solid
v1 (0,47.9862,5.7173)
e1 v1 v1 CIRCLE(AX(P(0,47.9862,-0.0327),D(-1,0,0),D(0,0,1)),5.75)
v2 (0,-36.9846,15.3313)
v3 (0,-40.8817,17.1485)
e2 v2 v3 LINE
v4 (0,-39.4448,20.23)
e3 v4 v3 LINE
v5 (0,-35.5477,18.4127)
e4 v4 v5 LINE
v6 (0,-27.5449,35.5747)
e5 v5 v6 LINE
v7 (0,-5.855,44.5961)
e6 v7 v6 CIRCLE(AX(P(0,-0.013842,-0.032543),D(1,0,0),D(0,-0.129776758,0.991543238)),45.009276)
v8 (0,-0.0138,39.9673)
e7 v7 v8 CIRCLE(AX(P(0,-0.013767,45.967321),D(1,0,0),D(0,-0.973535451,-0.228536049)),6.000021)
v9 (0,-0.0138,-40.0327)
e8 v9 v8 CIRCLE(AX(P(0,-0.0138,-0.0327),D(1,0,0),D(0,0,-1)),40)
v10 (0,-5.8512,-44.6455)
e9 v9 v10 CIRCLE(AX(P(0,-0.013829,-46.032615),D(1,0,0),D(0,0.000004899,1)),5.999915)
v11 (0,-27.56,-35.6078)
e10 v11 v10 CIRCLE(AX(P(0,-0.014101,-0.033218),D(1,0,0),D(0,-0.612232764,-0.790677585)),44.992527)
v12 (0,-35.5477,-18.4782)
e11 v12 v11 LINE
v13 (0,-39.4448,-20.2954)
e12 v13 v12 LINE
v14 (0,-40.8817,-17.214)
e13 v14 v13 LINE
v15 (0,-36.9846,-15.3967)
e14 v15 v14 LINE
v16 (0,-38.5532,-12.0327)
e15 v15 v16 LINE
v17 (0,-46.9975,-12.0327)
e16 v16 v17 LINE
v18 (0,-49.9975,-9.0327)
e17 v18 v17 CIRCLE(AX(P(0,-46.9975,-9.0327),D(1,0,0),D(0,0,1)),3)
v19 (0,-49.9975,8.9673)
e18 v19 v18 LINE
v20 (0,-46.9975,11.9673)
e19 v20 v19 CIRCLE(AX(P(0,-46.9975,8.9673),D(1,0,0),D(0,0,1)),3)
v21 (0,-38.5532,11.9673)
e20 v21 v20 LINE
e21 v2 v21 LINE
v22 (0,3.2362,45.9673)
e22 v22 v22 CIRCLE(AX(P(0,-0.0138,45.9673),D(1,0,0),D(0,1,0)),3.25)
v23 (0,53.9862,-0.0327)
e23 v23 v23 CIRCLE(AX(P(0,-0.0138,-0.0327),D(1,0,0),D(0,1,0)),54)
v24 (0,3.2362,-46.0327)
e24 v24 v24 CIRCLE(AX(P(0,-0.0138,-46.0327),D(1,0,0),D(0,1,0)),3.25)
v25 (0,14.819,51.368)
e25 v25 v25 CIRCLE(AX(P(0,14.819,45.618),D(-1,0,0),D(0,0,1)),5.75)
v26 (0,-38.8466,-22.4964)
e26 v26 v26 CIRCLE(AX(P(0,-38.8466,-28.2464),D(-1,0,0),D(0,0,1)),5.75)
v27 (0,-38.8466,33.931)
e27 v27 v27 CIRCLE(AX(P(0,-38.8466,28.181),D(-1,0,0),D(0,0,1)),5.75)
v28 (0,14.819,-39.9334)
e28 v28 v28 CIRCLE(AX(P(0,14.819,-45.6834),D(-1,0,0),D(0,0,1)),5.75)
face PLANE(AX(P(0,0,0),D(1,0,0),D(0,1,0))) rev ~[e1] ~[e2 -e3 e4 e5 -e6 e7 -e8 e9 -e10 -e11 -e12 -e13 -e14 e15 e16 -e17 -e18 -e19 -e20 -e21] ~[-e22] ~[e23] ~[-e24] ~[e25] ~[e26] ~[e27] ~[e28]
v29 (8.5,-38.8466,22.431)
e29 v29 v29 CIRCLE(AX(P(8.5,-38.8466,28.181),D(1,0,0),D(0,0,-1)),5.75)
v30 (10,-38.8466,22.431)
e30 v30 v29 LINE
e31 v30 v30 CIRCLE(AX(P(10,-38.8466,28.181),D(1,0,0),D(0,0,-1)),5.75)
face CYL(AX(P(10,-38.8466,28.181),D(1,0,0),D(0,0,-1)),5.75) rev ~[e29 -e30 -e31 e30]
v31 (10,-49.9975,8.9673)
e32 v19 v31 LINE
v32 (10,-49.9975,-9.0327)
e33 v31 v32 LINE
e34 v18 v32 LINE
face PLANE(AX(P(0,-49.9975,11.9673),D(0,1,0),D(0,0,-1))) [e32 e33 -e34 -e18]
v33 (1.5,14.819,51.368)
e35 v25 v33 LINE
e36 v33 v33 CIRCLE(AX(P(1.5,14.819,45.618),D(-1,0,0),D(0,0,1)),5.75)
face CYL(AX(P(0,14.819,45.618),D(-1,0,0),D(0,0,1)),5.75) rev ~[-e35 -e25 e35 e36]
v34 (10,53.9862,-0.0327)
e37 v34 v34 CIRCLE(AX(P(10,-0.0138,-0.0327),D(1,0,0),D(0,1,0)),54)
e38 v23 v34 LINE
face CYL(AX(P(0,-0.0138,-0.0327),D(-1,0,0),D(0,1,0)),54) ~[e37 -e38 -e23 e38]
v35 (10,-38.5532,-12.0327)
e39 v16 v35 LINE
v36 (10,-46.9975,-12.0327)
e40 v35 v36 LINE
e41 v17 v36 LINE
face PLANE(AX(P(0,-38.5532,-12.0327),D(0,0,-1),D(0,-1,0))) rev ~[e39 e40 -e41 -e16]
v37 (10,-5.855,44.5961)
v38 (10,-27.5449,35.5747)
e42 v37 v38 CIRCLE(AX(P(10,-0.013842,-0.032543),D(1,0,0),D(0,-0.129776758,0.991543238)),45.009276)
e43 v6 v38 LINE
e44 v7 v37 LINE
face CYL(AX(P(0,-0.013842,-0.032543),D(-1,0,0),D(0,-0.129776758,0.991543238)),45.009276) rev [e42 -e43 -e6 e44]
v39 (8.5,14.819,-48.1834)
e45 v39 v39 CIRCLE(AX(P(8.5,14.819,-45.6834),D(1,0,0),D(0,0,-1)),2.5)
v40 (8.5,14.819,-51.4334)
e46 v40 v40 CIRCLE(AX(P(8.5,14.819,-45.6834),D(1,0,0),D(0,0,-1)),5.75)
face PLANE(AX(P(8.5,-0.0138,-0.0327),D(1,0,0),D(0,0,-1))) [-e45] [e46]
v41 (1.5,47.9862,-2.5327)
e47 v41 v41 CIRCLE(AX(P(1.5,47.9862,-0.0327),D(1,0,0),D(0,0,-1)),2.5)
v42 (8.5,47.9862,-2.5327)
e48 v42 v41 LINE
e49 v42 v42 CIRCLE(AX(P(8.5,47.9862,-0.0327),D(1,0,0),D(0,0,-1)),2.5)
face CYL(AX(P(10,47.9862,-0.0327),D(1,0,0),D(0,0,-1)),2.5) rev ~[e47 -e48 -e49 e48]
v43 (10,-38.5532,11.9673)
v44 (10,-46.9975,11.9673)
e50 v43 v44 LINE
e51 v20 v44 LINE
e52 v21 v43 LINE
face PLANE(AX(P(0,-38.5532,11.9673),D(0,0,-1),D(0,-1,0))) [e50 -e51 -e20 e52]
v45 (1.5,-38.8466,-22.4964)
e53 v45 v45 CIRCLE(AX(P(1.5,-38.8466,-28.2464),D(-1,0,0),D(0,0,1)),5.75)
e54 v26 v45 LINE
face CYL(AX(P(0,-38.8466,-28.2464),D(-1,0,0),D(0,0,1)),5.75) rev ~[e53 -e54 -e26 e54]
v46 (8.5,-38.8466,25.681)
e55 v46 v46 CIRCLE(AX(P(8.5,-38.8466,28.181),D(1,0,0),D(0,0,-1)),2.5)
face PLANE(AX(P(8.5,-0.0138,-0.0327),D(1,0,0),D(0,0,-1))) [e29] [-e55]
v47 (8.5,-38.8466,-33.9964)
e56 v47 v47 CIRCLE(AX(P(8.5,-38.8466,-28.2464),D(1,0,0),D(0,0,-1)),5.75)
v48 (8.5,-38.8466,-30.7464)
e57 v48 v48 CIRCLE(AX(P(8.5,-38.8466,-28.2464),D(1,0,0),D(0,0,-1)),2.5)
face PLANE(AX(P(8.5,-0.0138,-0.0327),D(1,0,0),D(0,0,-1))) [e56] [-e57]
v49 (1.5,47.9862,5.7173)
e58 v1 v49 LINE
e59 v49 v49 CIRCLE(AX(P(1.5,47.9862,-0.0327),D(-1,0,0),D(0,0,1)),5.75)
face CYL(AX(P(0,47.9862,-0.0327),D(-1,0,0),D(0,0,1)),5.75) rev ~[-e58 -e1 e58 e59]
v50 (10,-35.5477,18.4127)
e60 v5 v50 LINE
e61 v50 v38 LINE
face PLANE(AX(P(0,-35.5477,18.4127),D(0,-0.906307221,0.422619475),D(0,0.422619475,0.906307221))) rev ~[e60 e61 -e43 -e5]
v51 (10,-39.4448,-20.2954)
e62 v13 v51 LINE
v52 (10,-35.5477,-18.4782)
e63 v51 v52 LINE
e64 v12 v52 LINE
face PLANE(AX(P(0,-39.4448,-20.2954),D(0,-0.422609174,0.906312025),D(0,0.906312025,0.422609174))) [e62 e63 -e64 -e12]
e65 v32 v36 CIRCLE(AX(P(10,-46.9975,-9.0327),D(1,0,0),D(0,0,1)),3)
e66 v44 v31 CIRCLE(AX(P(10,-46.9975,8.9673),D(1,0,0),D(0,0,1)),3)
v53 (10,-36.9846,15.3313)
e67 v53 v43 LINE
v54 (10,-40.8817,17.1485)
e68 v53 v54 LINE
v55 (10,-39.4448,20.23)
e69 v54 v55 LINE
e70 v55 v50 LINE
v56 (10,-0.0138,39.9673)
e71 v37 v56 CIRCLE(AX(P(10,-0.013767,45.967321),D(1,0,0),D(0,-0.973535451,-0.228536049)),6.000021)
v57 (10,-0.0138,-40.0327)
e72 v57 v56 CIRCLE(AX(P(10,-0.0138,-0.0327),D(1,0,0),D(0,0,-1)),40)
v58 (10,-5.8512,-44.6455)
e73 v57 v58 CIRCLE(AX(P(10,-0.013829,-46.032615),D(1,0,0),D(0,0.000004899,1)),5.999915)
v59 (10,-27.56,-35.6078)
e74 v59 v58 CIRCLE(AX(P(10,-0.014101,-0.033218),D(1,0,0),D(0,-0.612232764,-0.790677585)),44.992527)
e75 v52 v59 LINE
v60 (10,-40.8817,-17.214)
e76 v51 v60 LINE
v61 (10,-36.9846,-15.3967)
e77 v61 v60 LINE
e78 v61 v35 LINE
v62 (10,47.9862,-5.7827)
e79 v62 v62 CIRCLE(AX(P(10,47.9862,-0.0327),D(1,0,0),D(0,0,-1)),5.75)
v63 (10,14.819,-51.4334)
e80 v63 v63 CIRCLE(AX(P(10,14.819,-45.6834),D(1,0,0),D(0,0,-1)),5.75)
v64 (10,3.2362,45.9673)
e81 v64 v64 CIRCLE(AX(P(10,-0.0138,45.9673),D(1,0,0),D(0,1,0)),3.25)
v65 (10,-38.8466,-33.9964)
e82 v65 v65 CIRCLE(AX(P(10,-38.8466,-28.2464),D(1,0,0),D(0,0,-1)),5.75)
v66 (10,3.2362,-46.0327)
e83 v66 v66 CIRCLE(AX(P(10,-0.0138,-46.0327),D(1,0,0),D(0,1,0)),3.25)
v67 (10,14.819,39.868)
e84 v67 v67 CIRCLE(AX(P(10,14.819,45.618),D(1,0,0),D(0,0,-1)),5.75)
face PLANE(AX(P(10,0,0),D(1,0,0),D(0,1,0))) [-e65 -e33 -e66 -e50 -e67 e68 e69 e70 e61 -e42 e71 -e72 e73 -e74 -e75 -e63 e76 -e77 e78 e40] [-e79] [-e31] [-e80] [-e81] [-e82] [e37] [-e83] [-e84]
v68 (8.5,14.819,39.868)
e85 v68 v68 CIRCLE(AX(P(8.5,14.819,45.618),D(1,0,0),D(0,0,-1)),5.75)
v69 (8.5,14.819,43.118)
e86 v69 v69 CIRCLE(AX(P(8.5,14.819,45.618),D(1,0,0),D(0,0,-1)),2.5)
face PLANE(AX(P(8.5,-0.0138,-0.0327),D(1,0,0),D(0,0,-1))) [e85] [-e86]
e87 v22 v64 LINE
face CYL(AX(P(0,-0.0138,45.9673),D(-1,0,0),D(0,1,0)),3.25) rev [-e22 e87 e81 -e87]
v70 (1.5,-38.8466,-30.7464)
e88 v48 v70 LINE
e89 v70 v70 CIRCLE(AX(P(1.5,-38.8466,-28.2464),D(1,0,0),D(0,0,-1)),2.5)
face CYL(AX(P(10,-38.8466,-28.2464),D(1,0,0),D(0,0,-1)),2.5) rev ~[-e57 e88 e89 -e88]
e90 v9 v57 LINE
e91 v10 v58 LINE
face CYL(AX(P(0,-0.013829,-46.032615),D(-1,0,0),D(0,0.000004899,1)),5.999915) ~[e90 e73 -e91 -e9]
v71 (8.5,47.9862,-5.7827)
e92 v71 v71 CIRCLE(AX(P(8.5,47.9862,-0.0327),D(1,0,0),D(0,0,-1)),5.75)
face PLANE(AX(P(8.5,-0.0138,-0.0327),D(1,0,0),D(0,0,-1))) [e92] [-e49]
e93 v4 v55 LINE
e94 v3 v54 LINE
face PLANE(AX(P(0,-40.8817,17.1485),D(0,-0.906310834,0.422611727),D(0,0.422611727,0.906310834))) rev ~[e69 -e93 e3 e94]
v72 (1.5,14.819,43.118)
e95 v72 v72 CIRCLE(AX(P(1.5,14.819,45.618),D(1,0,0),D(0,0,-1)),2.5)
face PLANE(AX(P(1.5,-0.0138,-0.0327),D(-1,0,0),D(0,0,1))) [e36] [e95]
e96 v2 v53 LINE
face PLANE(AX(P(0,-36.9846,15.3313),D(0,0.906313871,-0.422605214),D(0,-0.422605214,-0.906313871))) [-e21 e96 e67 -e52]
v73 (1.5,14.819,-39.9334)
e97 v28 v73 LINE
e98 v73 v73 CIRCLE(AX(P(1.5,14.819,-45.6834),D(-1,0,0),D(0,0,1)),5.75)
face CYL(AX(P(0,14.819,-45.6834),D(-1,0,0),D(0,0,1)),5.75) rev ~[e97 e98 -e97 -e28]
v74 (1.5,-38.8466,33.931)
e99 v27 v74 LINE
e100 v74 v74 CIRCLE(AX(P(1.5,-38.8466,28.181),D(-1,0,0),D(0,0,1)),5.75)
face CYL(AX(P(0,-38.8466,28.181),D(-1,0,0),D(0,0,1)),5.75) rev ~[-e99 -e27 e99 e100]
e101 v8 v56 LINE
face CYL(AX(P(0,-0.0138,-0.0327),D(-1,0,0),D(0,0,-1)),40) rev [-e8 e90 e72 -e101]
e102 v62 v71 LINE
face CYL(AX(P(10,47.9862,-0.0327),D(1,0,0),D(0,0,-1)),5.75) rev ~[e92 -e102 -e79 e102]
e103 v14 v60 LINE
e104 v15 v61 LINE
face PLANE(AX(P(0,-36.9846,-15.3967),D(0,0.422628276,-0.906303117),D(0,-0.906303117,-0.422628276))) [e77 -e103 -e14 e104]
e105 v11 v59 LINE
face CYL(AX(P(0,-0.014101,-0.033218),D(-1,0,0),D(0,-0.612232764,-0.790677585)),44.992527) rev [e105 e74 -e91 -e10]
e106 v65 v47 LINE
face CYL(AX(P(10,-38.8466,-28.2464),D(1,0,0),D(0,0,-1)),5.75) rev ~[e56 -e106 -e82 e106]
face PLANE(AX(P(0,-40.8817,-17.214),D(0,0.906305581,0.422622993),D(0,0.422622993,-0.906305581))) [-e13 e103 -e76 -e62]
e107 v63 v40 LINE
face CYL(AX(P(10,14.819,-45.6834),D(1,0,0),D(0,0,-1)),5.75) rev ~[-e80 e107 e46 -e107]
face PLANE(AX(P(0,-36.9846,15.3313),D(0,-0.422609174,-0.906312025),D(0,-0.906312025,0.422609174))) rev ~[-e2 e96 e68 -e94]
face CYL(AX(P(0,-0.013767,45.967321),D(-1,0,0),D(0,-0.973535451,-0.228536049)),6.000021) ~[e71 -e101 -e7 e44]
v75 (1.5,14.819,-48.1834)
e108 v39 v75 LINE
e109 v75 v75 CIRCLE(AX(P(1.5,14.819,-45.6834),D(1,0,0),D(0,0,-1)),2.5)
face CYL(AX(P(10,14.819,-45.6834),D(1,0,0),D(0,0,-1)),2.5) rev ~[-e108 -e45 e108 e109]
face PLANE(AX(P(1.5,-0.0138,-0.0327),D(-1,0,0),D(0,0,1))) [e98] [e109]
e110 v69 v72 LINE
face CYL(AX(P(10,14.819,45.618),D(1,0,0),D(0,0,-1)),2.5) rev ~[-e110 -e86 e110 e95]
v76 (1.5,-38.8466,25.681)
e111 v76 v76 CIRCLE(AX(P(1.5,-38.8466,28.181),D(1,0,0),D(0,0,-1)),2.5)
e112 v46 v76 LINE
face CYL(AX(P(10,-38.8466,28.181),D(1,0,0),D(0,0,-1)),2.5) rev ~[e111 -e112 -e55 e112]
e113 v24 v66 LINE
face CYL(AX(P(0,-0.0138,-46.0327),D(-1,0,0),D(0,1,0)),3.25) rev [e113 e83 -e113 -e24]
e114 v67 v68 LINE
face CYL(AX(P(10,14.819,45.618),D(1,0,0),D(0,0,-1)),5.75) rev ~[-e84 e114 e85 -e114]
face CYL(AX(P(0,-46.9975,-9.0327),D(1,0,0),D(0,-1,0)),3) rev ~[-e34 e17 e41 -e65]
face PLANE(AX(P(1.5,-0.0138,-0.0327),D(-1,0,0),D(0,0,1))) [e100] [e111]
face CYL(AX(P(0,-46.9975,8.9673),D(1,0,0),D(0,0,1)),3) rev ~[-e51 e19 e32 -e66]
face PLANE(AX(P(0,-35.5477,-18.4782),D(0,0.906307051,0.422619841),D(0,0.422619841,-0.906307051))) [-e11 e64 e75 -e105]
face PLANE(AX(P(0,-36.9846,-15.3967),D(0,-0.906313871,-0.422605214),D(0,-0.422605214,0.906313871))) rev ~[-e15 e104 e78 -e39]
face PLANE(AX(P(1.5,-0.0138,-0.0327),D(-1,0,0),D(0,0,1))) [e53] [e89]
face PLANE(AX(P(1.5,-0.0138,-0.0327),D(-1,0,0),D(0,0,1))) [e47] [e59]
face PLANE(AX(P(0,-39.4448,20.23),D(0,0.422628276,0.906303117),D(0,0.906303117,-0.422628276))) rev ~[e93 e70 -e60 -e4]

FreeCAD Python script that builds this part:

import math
import FreeCAD as App
import Part
import Sketcher
Q = App.Units.Quantity


def edges_at(feature, points):
    """Names of the edges that pass closest to the given points."""
    edges = feature.Shape.Edges
    near = lambda p: min(range(len(edges)), key=lambda i: edges[i].distToShape(Part.Vertex(*p))[0])
    return sorted({f"Edge{near(p) + 1}" for p in points})

doc = App.newDocument("Part")
body = doc.addObject("PartDesign::Body", "Body")

sketch1 = body.newObject("Sketcher::SketchObject", "Sketch")
sketch1.AttachmentSupport = (doc.getObject("YZ_Plane"), [""])
sketch1.MapMode = "FlatFace"
sketch1.addGeometry([
    Part.Circle(App.Vector(0, 0, 0), App.Vector(0, 0, 1), 54),
    Part.Circle(App.Vector(0, -46, 0), App.Vector(0, 0, 1), 3.2),
    Part.ArcOfCircle(Part.Circle(App.Vector(0, 0, 0), App.Vector(0, 0, 1), 45), math.radians(97), math.radians(128)),
    Part.ArcOfCircle(Part.Circle(App.Vector(0, 46, 0), App.Vector(0, 0, 1), 6), math.radians(-167), math.radians(-90)),
    Part.ArcOfCircle(Part.Circle(App.Vector(0, 0, 0), App.Vector(0, 0, 1), 40), math.radians(-90), math.radians(90)),
    Part.ArcOfCircle(Part.Circle(App.Vector(0, -46, 0), App.Vector(0, 0, 1), 6), math.radians(90), math.radians(167)),
    Part.ArcOfCircle(Part.Circle(App.Vector(0, 0, 0), App.Vector(0, 0, 1), 45), math.radians(-128), math.radians(-97)),
    Part.LineSegment(App.Vector(-27.6, -35.6, 0), App.Vector(-35.5, -18.5, 0)),
    Part.LineSegment(App.Vector(-35.5, -18.5, 0), App.Vector(-39.4, -20.3, 0)),
    Part.LineSegment(App.Vector(-39.4, -20.3, 0), App.Vector(-40.9, -17.2, 0)),
    Part.LineSegment(App.Vector(-40.9, -17.2, 0), App.Vector(-37, -15.4, 0)),
    Part.LineSegment(App.Vector(-37, -15.4, 0), App.Vector(-38.6, -12, 0)),
    Part.LineSegment(App.Vector(-38.6, -12, 0), App.Vector(-50, -12, 0)),
    Part.LineSegment(App.Vector(-50, -12, 0), App.Vector(-50, 12, 0)),
    Part.LineSegment(App.Vector(-50, 12, 0), App.Vector(-38.6, 12, 0)),
    Part.LineSegment(App.Vector(-38.6, 12, 0), App.Vector(-37, 15.3, 0)),
    Part.LineSegment(App.Vector(-37, 15.3, 0), App.Vector(-40.9, 17.1, 0)),
    Part.LineSegment(App.Vector(-40.9, 17.1, 0), App.Vector(-39.4, 20.2, 0)),
    Part.LineSegment(App.Vector(-39.4, 20.2, 0), App.Vector(-35.5, 18.4, 0)),
    Part.LineSegment(App.Vector(-35.5, 18.4, 0), App.Vector(-27.5, 35.6, 0)),
    Part.Circle(App.Vector(0, 46, 0), App.Vector(0, 0, 1), 3.2),
], False)
sketch1.addConstraint([
    Sketcher.Constraint("Coincident", 2, 1, 3, 1),
    Sketcher.Constraint("Tangent", 3, 2, 4, 2),
    Sketcher.Constraint("Tangent", 4, 1, 5, 1),
    Sketcher.Constraint("Coincident", 5, 2, 6, 2),
    Sketcher.Constraint("Coincident", 6, 1, 7, 1),
    Sketcher.Constraint("Coincident", 7, 2, 8, 1),
    Sketcher.Constraint("Coincident", 8, 2, 9, 1),
    Sketcher.Constraint("Coincident", 9, 2, 10, 1),
    Sketcher.Constraint("Coincident", 10, 2, 11, 1),
    Sketcher.Constraint("Coincident", 11, 2, 12, 1),
    Sketcher.Constraint("Coincident", 12, 2, 13, 1),
    Sketcher.Constraint("Coincident", 13, 2, 14, 1),
    Sketcher.Constraint("Coincident", 14, 2, 15, 1),
    Sketcher.Constraint("Coincident", 15, 2, 16, 1),
    Sketcher.Constraint("Coincident", 16, 2, 17, 1),
    Sketcher.Constraint("Coincident", 17, 2, 18, 1),
    Sketcher.Constraint("Coincident", 18, 2, 19, 1),
    Sketcher.Constraint("Coincident", 19, 2, 2, 2),
    Sketcher.Constraint("Horizontal", 12),
    Sketcher.Constraint("Vertical", 13),
    Sketcher.Constraint("Horizontal", 14),
    Sketcher.Constraint("Coincident", 2, 3, 0, 3),
    Sketcher.Constraint("Coincident", 4, 3, 0, 3),
    Sketcher.Constraint("Coincident", 5, 3, 1, 3),
    Sketcher.Constraint("Coincident", 6, 3, 0, 3),
    Sketcher.Constraint("Coincident", 20, 3, 3, 3),
    Sketcher.Constraint("Equal", 3, 5),
    Sketcher.Constraint("Equal", 1, 20),
    Sketcher.Constraint("Perpendicular", 7, 8),
    Sketcher.Constraint("Perpendicular", 8, 9),
    Sketcher.Constraint("Perpendicular", 9, 10),
    Sketcher.Constraint("Perpendicular", 10, 11),
    Sketcher.Constraint("Perpendicular", 15, 16),
    Sketcher.Constraint("Perpendicular", 16, 17),
    Sketcher.Constraint("Perpendicular", 17, 18),
    Sketcher.Constraint("Perpendicular", 18, 19),
    Sketcher.Constraint("Vertical", 0, 3, 1, 3),
    Sketcher.Constraint("Vertical", 2, 3, 3, 3),
    Sketcher.Constraint("Vertical", 11, 2, 14, 2),
    Sketcher.Constraint("Vertical", 10, 2, 15, 2),
    Sketcher.Constraint("Vertical", 9, 2, 16, 2),
    Sketcher.Constraint("Vertical", 8, 2, 17, 2),
    Sketcher.Constraint("Vertical", 7, 2, 18, 2),
    Sketcher.Constraint("Equal", 8, 10),
    Sketcher.Constraint("Equal", 11, 15),
    Sketcher.Constraint("Diameter", 0, 108.0),
    Sketcher.Constraint("Radius", 3, 6.0),
    Sketcher.Constraint("Radius", 4, 40.0),
    Sketcher.Constraint("Diameter", 1, 6.5),
    Sketcher.Constraint("DistanceY", 13, 1, 13, 2, 24.0),
    Sketcher.Constraint("Distance", 8, 4.3),
    Sketcher.Constraint("Distance", 9, 3.4),
    Sketcher.Constraint("Angle", 7, Q("115 deg")),
    Sketcher.Constraint("Radius", 2, 45.0094),
    Sketcher.Constraint("Radius", 6, 44.9931),
    Sketcher.Constraint("DistanceX", 17, 2, 19, 2, 11.9),
    Sketcher.Constraint("DistanceX", 6, 1, -1, 1, 27.56),
    Sketcher.Constraint("DistanceY", -1, 1, 17, 2, 20.23),
    Sketcher.Constraint("DistanceY", 5, 2, 8, 2, 24.35),
    Sketcher.Constraint("DistanceX", 19, 2, 2, 1, 21.69),
    Sketcher.Constraint("DistanceX", 12, 2, 12, 1, 11.4443),
])
pad1 = body.newObject("PartDesign::Pad", "Pad")
pad1.Profile = sketch1
pad1.Length = 10
doc.recompute()

fillet = body.newObject("PartDesign::Fillet", "Fillet")
fillet.Base = (pad1, edges_at(pad1, [(5, -49.998, 11.967), (5, -49.998, -12.033)]))
fillet.Radius = 3

sketch2 = body.newObject("Sketcher::SketchObject", "Sketch001")
sketch2.AttachmentSupport = (doc.getObject("YZ_Plane"), [""])
sketch2.MapMode = "FlatFace"
sketch2.AttachmentOffset = App.Placement(App.Vector(0, 0, 10), App.Rotation())
sketch2.addGeometry([
    Part.Circle(App.Vector(14.8, -45.7, 0), App.Vector(0, 0, 1), 2.5),
    Part.Circle(App.Vector(-38.8, -28.2, 0), App.Vector(0, 0, 1), 2.5),
    Part.Circle(App.Vector(48, 0, 0), App.Vector(0, 0, 1), 2.5),
    Part.Circle(App.Vector(14.8, 45.6, 0), App.Vector(0, 0, 1), 2.5),
    Part.Circle(App.Vector(-38.8, 28.2, 0), App.Vector(0, 0, 1), 2.5),
], False)
sketch2.addConstraint([
    Sketcher.Constraint("Equal", 0, 1),
    Sketcher.Constraint("Equal", 1, 2),
    Sketcher.Constraint("Equal", 2, 3),
    Sketcher.Constraint("Equal", 3, 4),
    Sketcher.Constraint("Vertical", 0, 3, 3, 3),
    Sketcher.Constraint("Vertical", 1, 3, 4, 3),
    Sketcher.Constraint("Diameter", 0, 5.0),
    Sketcher.Constraint("DistanceX", -1, 1, 0, 3, 14.819),
    Sketcher.Constraint("DistanceY", -1, 1, 3, 3, 45.618),
    Sketcher.Constraint("DistanceY", -1, 1, 4, 3, 28.181),
    Sketcher.Constraint("DistanceY", 0, 3, 1, 3, 17.437),
    Sketcher.Constraint("DistanceY", 0, 3, -1, 1, 45.6834),
    Sketcher.Constraint("DistanceX", 1, 3, -1, 1, 38.8466),
    Sketcher.Constraint("DistanceX", -1, 1, 2, 3, 47.9862),
    Sketcher.Constraint("DistanceY", 2, 3, -1, 1, 0.0327),
])
pocket1 = body.newObject("PartDesign::Pocket", "Pocket")
pocket1.Profile = sketch2
pocket1.Length = 10

sketch3 = body.newObject("Sketcher::SketchObject", "Sketch002")
sketch3.AttachmentSupport = (doc.getObject("YZ_Plane"), [""])
sketch3.MapMode = "FlatFace"
sketch3.AttachmentOffset = App.Placement(App.Vector(0, 0, 10), App.Rotation())
sketch3.addGeometry([
    Part.Circle(App.Vector(48, 0, 0), App.Vector(0, 0, 1), 5.8),
    Part.Circle(App.Vector(48, 0, 0), App.Vector(0, 0, 1), 2.5),
    Part.Circle(App.Vector(14.8, 45.6, 0), App.Vector(0, 0, 1), 5.8),
    Part.Circle(App.Vector(-38.8, 28.2, 0), App.Vector(0, 0, 1), 5.8),
    Part.Circle(App.Vector(-38.8, -28.2, 0), App.Vector(0, 0, 1), 5.8),
    Part.Circle(App.Vector(14.8, -45.7, 0), App.Vector(0, 0, 1), 5.8),
], False)
sketch3.addConstraint([
    Sketcher.Constraint("Coincident", 1, 3, 0, 3),
    Sketcher.Constraint("Equal", 0, 2),
    Sketcher.Constraint("Equal", 2, 3),
    Sketcher.Constraint("Equal", 3, 4),
    Sketcher.Constraint("Equal", 4, 5),
    Sketcher.Constraint("Vertical", 3, 3, 4, 3),
    Sketcher.Constraint("Vertical", 2, 3, 5, 3),
    Sketcher.Constraint("Diameter", 0, 11.5),
    Sketcher.Constraint("Diameter", 1, 5.0),
    Sketcher.Constraint("DistanceX", -1, 1, 2, 3, 14.819),
    Sketcher.Constraint("DistanceY", -1, 1, 2, 3, 45.618),
    Sketcher.Constraint("DistanceY", -1, 1, 3, 3, 28.181),
    Sketcher.Constraint("DistanceY", 5, 3, 4, 3, 17.437),
    Sketcher.Constraint("DistanceX", -1, 1, 0, 3, 47.9862),
    Sketcher.Constraint("DistanceY", 0, 3, -1, 1, 0.0327),
    Sketcher.Constraint("DistanceX", 3, 3, -1, 1, 38.8466),
    Sketcher.Constraint("DistanceY", 4, 3, -1, 1, 28.2464),
])
pocket2 = body.newObject("PartDesign::Pocket", "Pocket001")
pocket2.Profile = sketch3
pocket2.Length = 1.5

sketch4 = body.newObject("Sketcher::SketchObject", "Sketch003")
sketch4.AttachmentSupport = (doc.getObject("YZ_Plane"), [""])
sketch4.MapMode = "FlatFace"
sketch4.addGeometry([
    Part.Circle(App.Vector(48, 0, 0), App.Vector(0, 0, 1), 6),
    Part.Circle(App.Vector(15, -46, 0), App.Vector(0, 0, 1), 6),
    Part.Circle(App.Vector(-39, -28, 0), App.Vector(0, 0, 1), 6),
    Part.Circle(App.Vector(-39, 28, 0), App.Vector(0, 0, 1), 6),
    Part.Circle(App.Vector(15, 46, 0), App.Vector(0, 0, 1), 6),
], False)
sketch4.addConstraint([
    Sketcher.Constraint("Equal", 0, 1),
    Sketcher.Constraint("Equal", 1, 2),
    Sketcher.Constraint("Equal", 2, 3),
    Sketcher.Constraint("Equal", 3, 4),
    Sketcher.Constraint("Vertical", 2, 3, 3, 3),
    Sketcher.Constraint("Vertical", 1, 3, 4, 3),
    Sketcher.Constraint("Diameter", 0, 11.5),
    Sketcher.Constraint("DistanceX", -1, 1, 1, 3, 14.819),
    Sketcher.Constraint("DistanceY", -1, 1, 3, 3, 28.181),
    Sketcher.Constraint("DistanceY", -1, 1, 4, 3, 45.618),
    Sketcher.Constraint("DistanceY", 1, 3, 2, 3, 17.437),
    Sketcher.Constraint("DistanceX", -1, 1, 0, 3, 47.9862),
    Sketcher.Constraint("DistanceY", 0, 3, -1, 1, 0.0327),
    Sketcher.Constraint("DistanceY", 1, 3, -1, 1, 45.6834),
    Sketcher.Constraint("DistanceX", 2, 3, -1, 1, 38.8466),
])
pocket3 = body.newObject("PartDesign::Pocket", "Pocket002")
pocket3.Profile = sketch4
pocket3.Length = 1.5
pocket3.Reversed = True

doc.recompute()
